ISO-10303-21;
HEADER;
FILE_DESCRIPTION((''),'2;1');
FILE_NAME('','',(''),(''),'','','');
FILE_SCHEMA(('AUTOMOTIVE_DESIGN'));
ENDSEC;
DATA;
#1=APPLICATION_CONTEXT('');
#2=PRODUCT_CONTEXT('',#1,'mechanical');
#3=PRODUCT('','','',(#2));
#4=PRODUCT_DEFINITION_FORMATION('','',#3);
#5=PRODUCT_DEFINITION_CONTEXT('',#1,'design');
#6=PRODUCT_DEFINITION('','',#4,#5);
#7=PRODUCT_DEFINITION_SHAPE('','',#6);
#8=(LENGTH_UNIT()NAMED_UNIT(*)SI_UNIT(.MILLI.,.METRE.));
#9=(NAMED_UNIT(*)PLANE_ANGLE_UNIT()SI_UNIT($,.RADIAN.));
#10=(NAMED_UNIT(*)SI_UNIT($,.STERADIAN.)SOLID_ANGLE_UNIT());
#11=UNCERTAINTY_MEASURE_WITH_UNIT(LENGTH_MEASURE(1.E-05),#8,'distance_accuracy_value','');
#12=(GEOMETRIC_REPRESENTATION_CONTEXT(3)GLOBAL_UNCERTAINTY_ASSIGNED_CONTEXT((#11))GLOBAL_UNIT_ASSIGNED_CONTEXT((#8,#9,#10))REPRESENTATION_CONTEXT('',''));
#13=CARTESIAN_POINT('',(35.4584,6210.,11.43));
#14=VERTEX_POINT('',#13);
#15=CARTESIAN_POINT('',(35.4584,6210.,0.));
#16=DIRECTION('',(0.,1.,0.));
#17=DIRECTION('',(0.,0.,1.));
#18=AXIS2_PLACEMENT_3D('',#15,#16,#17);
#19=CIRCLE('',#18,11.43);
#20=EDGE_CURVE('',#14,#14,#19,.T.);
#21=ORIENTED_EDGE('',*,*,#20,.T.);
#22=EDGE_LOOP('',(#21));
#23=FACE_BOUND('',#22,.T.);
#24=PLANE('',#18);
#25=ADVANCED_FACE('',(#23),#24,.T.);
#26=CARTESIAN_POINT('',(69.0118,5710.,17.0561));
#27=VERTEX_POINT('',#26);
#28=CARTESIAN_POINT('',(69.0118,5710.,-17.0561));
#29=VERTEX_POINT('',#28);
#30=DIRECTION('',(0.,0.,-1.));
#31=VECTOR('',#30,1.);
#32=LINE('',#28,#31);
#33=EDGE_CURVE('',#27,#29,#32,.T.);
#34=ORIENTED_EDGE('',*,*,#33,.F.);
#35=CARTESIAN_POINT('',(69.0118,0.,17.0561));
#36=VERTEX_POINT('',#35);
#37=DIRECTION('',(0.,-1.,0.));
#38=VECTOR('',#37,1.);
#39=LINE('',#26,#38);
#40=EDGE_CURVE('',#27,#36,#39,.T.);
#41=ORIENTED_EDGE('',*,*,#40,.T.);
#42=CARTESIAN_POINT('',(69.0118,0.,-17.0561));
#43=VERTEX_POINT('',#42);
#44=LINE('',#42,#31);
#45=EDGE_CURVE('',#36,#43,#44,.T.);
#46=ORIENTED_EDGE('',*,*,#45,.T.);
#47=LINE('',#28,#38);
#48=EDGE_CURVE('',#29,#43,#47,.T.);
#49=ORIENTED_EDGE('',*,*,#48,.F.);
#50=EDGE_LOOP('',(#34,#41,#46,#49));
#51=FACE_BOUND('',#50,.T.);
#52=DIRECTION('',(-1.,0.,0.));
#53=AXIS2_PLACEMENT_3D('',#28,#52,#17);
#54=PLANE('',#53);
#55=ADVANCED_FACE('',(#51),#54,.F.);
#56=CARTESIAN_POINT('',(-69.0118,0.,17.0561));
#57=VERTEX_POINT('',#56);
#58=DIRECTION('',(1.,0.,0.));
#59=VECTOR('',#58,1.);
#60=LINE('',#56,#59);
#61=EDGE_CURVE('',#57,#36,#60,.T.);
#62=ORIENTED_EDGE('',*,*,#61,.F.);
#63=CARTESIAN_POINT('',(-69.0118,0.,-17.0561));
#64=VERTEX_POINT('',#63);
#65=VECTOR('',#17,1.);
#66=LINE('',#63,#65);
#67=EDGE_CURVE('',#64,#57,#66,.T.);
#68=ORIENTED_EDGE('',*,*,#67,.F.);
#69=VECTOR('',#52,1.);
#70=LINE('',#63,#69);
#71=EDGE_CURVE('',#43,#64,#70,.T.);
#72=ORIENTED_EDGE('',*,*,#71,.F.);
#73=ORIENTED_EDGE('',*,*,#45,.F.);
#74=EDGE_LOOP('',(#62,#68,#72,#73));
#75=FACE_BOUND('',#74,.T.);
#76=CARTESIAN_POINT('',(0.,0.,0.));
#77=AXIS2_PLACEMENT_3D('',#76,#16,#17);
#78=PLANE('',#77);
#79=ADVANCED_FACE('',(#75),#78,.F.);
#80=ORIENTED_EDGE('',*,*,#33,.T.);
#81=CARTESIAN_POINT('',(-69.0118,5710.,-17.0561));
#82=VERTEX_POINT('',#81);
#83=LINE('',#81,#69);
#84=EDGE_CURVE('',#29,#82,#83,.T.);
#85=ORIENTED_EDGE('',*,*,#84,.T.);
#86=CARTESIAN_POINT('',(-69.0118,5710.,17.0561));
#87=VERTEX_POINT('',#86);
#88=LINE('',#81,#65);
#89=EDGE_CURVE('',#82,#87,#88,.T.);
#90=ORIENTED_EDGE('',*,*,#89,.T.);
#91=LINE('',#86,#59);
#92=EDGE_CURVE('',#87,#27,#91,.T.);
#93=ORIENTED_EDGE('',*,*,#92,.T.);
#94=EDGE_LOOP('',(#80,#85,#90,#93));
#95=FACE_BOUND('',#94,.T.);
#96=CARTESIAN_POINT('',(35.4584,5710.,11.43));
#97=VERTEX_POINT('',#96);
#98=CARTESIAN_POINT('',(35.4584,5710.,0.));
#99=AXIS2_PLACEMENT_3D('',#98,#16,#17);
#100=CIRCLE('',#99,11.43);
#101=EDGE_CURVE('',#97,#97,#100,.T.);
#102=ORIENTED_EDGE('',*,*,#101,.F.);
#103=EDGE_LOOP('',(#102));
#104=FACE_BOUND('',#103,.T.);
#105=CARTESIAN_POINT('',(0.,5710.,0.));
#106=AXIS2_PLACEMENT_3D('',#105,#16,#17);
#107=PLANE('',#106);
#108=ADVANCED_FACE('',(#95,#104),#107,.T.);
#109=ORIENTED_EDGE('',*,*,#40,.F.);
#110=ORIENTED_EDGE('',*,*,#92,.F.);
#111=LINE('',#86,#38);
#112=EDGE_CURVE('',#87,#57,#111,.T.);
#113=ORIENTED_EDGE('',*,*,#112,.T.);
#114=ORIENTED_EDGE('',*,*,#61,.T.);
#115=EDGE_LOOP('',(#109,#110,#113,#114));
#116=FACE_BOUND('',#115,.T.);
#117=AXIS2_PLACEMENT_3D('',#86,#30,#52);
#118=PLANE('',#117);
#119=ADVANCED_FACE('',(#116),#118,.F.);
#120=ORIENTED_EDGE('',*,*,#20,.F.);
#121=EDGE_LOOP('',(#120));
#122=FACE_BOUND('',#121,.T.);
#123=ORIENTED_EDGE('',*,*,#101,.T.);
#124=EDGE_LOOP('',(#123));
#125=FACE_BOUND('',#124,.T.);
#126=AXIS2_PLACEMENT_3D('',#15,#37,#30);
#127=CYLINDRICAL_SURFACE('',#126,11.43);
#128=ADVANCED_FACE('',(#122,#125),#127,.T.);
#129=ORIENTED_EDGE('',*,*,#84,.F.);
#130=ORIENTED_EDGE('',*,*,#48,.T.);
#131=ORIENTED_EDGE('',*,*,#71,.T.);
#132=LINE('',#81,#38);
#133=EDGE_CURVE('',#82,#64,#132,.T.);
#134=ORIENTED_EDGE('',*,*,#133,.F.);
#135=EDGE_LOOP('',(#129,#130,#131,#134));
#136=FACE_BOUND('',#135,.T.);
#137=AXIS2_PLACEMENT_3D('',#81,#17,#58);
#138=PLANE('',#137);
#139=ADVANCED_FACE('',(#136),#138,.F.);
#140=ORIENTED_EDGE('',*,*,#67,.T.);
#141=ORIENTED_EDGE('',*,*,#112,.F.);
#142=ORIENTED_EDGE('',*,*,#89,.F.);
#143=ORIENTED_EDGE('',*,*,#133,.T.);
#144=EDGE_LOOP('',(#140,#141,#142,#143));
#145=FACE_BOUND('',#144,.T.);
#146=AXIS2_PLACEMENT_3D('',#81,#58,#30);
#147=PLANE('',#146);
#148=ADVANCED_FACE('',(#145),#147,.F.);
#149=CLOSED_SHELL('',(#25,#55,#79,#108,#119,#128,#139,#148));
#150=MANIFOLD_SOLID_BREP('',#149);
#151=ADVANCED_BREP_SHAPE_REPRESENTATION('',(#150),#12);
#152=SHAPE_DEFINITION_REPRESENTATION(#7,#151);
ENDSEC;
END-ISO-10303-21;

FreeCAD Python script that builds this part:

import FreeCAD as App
import Part
import Sketcher
Q = App.Units.Quantity


def add_polygon(sketch, points):
    """Adds a closed chain of lines whose ends are joined by coincident constraints."""
    first, n = sketch.GeometryCount, len(points)
    for a, b in zip(points, points[1:] + points[:1]):
        sketch.addGeometry(Part.LineSegment(App.Vector(*a, 0), App.Vector(*b, 0)), False)
    for i in range(n):
        sketch.addConstraint(Sketcher.Constraint("Coincident", first + i, 2, first + (i + 1) % n, 1))

doc = App.newDocument("Part")
params = doc.addObject("Spreadsheet::Sheet", "Params")
for row, (alias, value) in enumerate([
    ("sketch1_width", "5.434 in"),
    ("sketch1_height", "1.343 in"),
    ("pad1_length", "5710 mm"),
    ("sketch2_diameter", "0.9 in"),
    ("pad2_length", "500 mm"),
], start=1):
    params.set(f"A{row}", alias)
    params.set(f"B{row}", "=" + value)
    params.setAlias(f"B{row}", alias)

body = doc.addObject("PartDesign::Body", "Body")

# Sketch on XZ plane
sketch1 = body.newObject("Sketcher::SketchObject", "Sketch")
sketch1.AttachmentSupport = (doc.getObject("XZ_Plane"), [""])
sketch1.MapMode = "FlatFace"
add_polygon(sketch1, [(-69, -17), (-69, 17), (69, 17), (69, -17)])  # lines 0-3
sketch1.addConstraint(Sketcher.Constraint("Vertical", 0))
sketch1.addConstraint(Sketcher.Constraint("Horizontal", 1))
sketch1.addConstraint(Sketcher.Constraint("Vertical", 2))
sketch1.addConstraint(Sketcher.Constraint("Horizontal", 3))
sketch1.addConstraint(Sketcher.Constraint("Symmetric", 0, 2, 2, 2, -1, 1))
sketch1.addConstraint(Sketcher.Constraint("DistanceX", 1, 1, 1, 2, Q("5.434 in")))
sketch1.addConstraint(Sketcher.Constraint("DistanceY", 0, 1, 0, 2, Q("1.343 in")))
sketch1.setExpression("Constraints[9]", "Params.sketch1_width")
sketch1.setExpression("Constraints[10]", "Params.sketch1_height")
pad1 = body.newObject("PartDesign::Pad", "Pad")
pad1.Profile = sketch1
pad1.setExpression("Length", "Params.pad1_length")
pad1.Reversed = True

# Sketch on XZ plane
sketch2 = body.newObject("Sketcher::SketchObject", "Sketch001")
sketch2.AttachmentSupport = (doc.getObject("XZ_Plane"), [""])
sketch2.MapMode = "FlatFace"
sketch2.AttachmentOffset = App.Placement(App.Vector(0, 0, -5710), App.Rotation())
sketch2.addGeometry(Part.Circle(App.Vector(35, 0, 0), App.Vector(0, 0, 1), 11), False)
sketch2.addConstraint(Sketcher.Constraint("PointOnObject", 0, 3, -1))
sketch2.addConstraint(Sketcher.Constraint("Diameter", 0, Q("0.9 in")))
sketch2.addConstraint(Sketcher.Constraint("DistanceX", -1, 1, 0, 3, Q("1.396 in")))
sketch2.setExpression("Constraints[1]", "Params.sketch2_diameter")
pad2 = body.newObject("PartDesign::Pad", "Pad001")
pad2.Profile = sketch2
pad2.setExpression("Length", "Params.pad2_length")
pad2.Reversed = True

doc.recompute()
